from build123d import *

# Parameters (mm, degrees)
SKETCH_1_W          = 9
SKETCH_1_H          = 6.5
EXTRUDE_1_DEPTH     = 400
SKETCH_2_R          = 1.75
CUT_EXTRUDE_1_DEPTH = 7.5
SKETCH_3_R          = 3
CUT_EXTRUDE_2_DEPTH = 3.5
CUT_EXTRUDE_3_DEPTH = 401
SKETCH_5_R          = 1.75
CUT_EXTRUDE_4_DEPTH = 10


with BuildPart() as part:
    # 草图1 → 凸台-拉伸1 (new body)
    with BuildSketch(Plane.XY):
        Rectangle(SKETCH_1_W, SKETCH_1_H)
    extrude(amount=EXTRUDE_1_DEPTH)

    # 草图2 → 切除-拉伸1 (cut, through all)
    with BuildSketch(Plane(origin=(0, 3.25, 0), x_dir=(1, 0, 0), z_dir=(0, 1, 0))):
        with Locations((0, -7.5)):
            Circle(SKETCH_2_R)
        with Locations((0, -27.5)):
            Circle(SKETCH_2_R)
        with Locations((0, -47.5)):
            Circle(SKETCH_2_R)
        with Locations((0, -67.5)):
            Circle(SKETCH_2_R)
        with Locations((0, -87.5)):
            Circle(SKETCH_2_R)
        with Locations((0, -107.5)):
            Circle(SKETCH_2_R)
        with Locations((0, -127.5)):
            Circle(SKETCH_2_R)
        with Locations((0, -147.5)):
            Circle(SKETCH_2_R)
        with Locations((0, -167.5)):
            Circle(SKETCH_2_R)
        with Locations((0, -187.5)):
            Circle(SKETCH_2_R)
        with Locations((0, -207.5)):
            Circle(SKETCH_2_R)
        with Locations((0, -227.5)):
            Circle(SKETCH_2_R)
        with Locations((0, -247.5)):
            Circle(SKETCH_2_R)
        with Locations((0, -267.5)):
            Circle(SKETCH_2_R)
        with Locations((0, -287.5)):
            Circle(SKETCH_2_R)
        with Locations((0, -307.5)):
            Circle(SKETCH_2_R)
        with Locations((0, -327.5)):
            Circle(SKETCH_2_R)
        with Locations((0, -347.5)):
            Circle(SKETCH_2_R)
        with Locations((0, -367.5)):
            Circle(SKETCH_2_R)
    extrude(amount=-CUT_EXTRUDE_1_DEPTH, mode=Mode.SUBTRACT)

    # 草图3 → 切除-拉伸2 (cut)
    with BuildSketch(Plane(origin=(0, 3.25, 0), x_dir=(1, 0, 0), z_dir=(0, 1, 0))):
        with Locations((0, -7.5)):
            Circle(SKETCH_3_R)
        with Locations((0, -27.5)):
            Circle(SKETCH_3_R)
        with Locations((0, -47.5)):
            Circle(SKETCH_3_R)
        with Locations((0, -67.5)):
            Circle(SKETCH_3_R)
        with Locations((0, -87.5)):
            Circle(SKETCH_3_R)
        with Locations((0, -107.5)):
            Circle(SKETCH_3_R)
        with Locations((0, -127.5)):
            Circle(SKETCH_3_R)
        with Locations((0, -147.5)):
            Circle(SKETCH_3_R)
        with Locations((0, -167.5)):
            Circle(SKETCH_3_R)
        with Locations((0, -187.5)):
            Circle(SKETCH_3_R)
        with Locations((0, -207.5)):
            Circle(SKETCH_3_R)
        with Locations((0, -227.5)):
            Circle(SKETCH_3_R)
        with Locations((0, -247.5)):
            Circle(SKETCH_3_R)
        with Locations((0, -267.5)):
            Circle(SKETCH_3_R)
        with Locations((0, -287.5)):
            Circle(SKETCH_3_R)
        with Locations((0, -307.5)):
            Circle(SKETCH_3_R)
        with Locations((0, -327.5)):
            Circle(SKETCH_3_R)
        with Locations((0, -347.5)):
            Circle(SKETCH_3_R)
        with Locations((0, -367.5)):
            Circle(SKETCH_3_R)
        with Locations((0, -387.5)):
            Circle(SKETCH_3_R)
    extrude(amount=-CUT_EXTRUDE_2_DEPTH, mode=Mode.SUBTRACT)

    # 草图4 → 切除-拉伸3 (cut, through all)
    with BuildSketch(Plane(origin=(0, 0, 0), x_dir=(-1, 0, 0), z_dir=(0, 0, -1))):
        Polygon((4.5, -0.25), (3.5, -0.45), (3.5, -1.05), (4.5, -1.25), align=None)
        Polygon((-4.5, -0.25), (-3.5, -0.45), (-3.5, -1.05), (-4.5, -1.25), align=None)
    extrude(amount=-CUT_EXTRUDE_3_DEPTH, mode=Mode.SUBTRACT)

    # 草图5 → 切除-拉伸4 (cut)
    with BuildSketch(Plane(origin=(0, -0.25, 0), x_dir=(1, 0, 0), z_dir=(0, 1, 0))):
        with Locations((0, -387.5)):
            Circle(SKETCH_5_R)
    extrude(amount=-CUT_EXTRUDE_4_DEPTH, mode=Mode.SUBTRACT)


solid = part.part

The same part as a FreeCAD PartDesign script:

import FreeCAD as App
import Part
import Sketcher
from FreeCAD import Vector
Q = App.Units.Quantity


def add_polygon(sketch, points):
    """Adds a closed chain of lines whose ends are joined by coincident constraints."""
    first, n = sketch.GeometryCount, len(points)
    for a, b in zip(points, points[1:] + points[:1]):
        sketch.addGeometry(Part.LineSegment(App.Vector(*a, 0), App.Vector(*b, 0)), False)
    for i in range(n):
        sketch.addConstraint(Sketcher.Constraint("Coincident", first + i, 2, first + (i + 1) % n, 1))

doc = App.newDocument("Part")
body = doc.addObject("PartDesign::Body", "Body")

# Sketch on XY plane
sketch1 = body.newObject("Sketcher::SketchObject", "Sketch")
sketch1.AttachmentSupport = (doc.getObject("XY_Plane"), [""])
sketch1.MapMode = "FlatFace"
add_polygon(sketch1, [(-4.5, 3.25), (-4.5, -3.25), (4.5, -3.25), (4.5, 3.25)])  # lines 0-3
sketch1.addConstraint([
    Sketcher.Constraint("Vertical", 0),
    Sketcher.Constraint("Horizontal", 1),
    Sketcher.Constraint("Vertical", 2),
    Sketcher.Constraint("Horizontal", 3),
    Sketcher.Constraint("Symmetric", 0, 2, 2, 2, -1, 1),
    Sketcher.Constraint("DistanceX", 1, 1, 1, 2, Q("9 mm")),
    Sketcher.Constraint("DistanceY", 0, 2, 0, 1, Q("6.5 mm")),
])
pad1 = body.newObject("PartDesign::Pad", "Pad")
pad1.Profile = sketch1
pad1.Length = 400

# Sketch on XZ plane
sketch2 = body.newObject("Sketcher::SketchObject", "Sketch001")
sketch2.AttachmentSupport = (doc.getObject("XZ_Plane"), [""])
sketch2.MapMode = "FlatFace"
sketch2.AttachmentOffset = App.Placement(Vector(0, 0, -3.25), App.Rotation())
sketch2.addGeometry([
    Part.Circle(Vector(0, 7.5, 0), Vector(0, 0, 1), 1.75),  # 0
    Part.Circle(Vector(0, 27.5, 0), Vector(0, 0, 1), 1.75),  # 1
    Part.Circle(Vector(0, 47.5, 0), Vector(0, 0, 1), 1.75),  # 2
    Part.Circle(Vector(0, 67.5, 0), Vector(0, 0, 1), 1.75),  # 3
    Part.Circle(Vector(0, 87.5, 0), Vector(0, 0, 1), 1.75),  # 4
    Part.Circle(Vector(0, 107.5, 0), Vector(0, 0, 1), 1.75),  # 5
    Part.Circle(Vector(0, 127.5, 0), Vector(0, 0, 1), 1.75),  # 6
    Part.Circle(Vector(0, 147.5, 0), Vector(0, 0, 1), 1.75),  # 7
    Part.Circle(Vector(0, 167.5, 0), Vector(0, 0, 1), 1.75),  # 8
    Part.Circle(Vector(0, 187.5, 0), Vector(0, 0, 1), 1.75),  # 9
    Part.Circle(Vector(0, 207.5, 0), Vector(0, 0, 1), 1.75),  # 10
    Part.Circle(Vector(0, 227.5, 0), Vector(0, 0, 1), 1.75),  # 11
    Part.Circle(Vector(0, 247.5, 0), Vector(0, 0, 1), 1.75),  # 12
    Part.Circle(Vector(0, 267.5, 0), Vector(0, 0, 1), 1.75),  # 13
    Part.Circle(Vector(0, 287.5, 0), Vector(0, 0, 1), 1.75),  # 14
    Part.Circle(Vector(0, 307.5, 0), Vector(0, 0, 1), 1.75),  # 15
    Part.Circle(Vector(0, 327.5, 0), Vector(0, 0, 1), 1.75),  # 16
    Part.Circle(Vector(0, 347.5, 0), Vector(0, 0, 1), 1.75),  # 17
    Part.Circle(Vector(0, 367.5, 0), Vector(0, 0, 1), 1.75),  # 18
], False)
sketch2.addConstraint([
    Sketcher.Constraint("Equal", 0, 1),
    Sketcher.Constraint("Equal", 1, 2),
    Sketcher.Constraint("Equal", 2, 3),
    Sketcher.Constraint("Equal", 3, 4),
    Sketcher.Constraint("Equal", 4, 5),
    Sketcher.Constraint("Equal", 5, 6),
    Sketcher.Constraint("Equal", 6, 7),
    Sketcher.Constraint("Equal", 7, 8),
    Sketcher.Constraint("Equal", 8, 9),
    Sketcher.Constraint("Equal", 9, 10),
    Sketcher.Constraint("Equal", 10, 11),
    Sketcher.Constraint("Equal", 11, 12),
    Sketcher.Constraint("Equal", 12, 13),
    Sketcher.Constraint("Equal", 13, 14),
    Sketcher.Constraint("Equal", 14, 15),
    Sketcher.Constraint("Equal", 15, 16),
    Sketcher.Constraint("Equal", 16, 17),
    Sketcher.Constraint("Equal", 17, 18),
    Sketcher.Constraint("PointOnObject", 0, 3, -2),
    Sketcher.Constraint("PointOnObject", 1, 3, -2),
    Sketcher.Constraint("PointOnObject", 2, 3, -2),
    Sketcher.Constraint("PointOnObject", 3, 3, -2),
    Sketcher.Constraint("PointOnObject", 4, 3, -2),
    Sketcher.Constraint("PointOnObject", 5, 3, -2),
    Sketcher.Constraint("PointOnObject", 6, 3, -2),
    Sketcher.Constraint("PointOnObject", 7, 3, -2),
    Sketcher.Constraint("PointOnObject", 8, 3, -2),
    Sketcher.Constraint("PointOnObject", 9, 3, -2),
    Sketcher.Constraint("PointOnObject", 10, 3, -2),
    Sketcher.Constraint("PointOnObject", 11, 3, -2),
    Sketcher.Constraint("PointOnObject", 12, 3, -2),
    Sketcher.Constraint("PointOnObject", 13, 3, -2),
    Sketcher.Constraint("PointOnObject", 14, 3, -2),
    Sketcher.Constraint("PointOnObject", 15, 3, -2),
    Sketcher.Constraint("PointOnObject", 16, 3, -2),
    Sketcher.Constraint("PointOnObject", 17, 3, -2),
    Sketcher.Constraint("PointOnObject", 18, 3, -2),
    Sketcher.Constraint("Diameter", 0, Q("3.5 mm")),
    Sketcher.Constraint("DistanceY", 0, 3, 1, 3, Q("20 mm")),
    Sketcher.Constraint("DistanceY", 1, 3, 2, 3, Q("20 mm")),
    Sketcher.Constraint("DistanceY", 2, 3, 3, 3, Q("20 mm")),
    Sketcher.Constraint("DistanceY", 3, 3, 4, 3, Q("20 mm")),
    Sketcher.Constraint("DistanceY", 4, 3, 5, 3, Q("20 mm")),
    Sketcher.Constraint("DistanceY", 5, 3, 6, 3, Q("20 mm")),
    Sketcher.Constraint("DistanceY", 6, 3, 7, 3, Q("20 mm")),
    Sketcher.Constraint("DistanceY", 7, 3, 8, 3, Q("20 mm")),
    Sketcher.Constraint("DistanceY", 8, 3, 9, 3, Q("20 mm")),
    Sketcher.Constraint("DistanceY", 9, 3, 10, 3, Q("20 mm")),
    Sketcher.Constraint("DistanceY", 10, 3, 11, 3, Q("20 mm")),
    Sketcher.Constraint("DistanceY", 11, 3, 12, 3, Q("20 mm")),
    Sketcher.Constraint("DistanceY", 12, 3, 13, 3, Q("20 mm")),
    Sketcher.Constraint("DistanceY", 13, 3, 14, 3, Q("20 mm")),
    Sketcher.Constraint("DistanceY", 14, 3, 15, 3, Q("20 mm")),
    Sketcher.Constraint("DistanceY", 15, 3, 16, 3, Q("20 mm")),
    Sketcher.Constraint("DistanceY", 16, 3, 17, 3, Q("20 mm")),
    Sketcher.Constraint("DistanceY", 17, 3, 18, 3, Q("20 mm")),
    Sketcher.Constraint("DistanceY", -1, 1, 0, 3, Q("7.5 mm")),
])
pocket1 = body.newObject("PartDesign::Pocket", "Pocket")
pocket1.Profile = sketch2
pocket1.Type = "ThroughAll"
pocket1.Reversed = True

# Sketch on XZ plane
sketch3 = body.newObject("Sketcher::SketchObject", "Sketch002")
sketch3.AttachmentSupport = (doc.getObject("XZ_Plane"), [""])
sketch3.MapMode = "FlatFace"
sketch3.AttachmentOffset = App.Placement(Vector(0, 0, -3.25), App.Rotation())
sketch3.addGeometry([
    Part.Circle(Vector(0, 7.5, 0), Vector(0, 0, 1), 3),  # 0
    Part.Circle(Vector(0, 27.5, 0), Vector(0, 0, 1), 3),  # 1
    Part.Circle(Vector(0, 47.5, 0), Vector(0, 0, 1), 3),  # 2
    Part.Circle(Vector(0, 67.5, 0), Vector(0, 0, 1), 3),  # 3
    Part.Circle(Vector(0, 87.5, 0), Vector(0, 0, 1), 3),  # 4
    Part.Circle(Vector(0, 107.5, 0), Vector(0, 0, 1), 3),  # 5
    Part.Circle(Vector(0, 127.5, 0), Vector(0, 0, 1), 3),  # 6
    Part.Circle(Vector(0, 147.5, 0), Vector(0, 0, 1), 3),  # 7
    Part.Circle(Vector(0, 167.5, 0), Vector(0, 0, 1), 3),  # 8
    Part.Circle(Vector(0, 187.5, 0), Vector(0, 0, 1), 3),  # 9
    Part.Circle(Vector(0, 207.5, 0), Vector(0, 0, 1), 3),  # 10
    Part.Circle(Vector(0, 227.5, 0), Vector(0, 0, 1), 3),  # 11
    Part.Circle(Vector(0, 247.5, 0), Vector(0, 0, 1), 3),  # 12
    Part.Circle(Vector(0, 267.5, 0), Vector(0, 0, 1), 3),  # 13
    Part.Circle(Vector(0, 287.5, 0), Vector(0, 0, 1), 3),  # 14
    Part.Circle(Vector(0, 307.5, 0), Vector(0, 0, 1), 3),  # 15
    Part.Circle(Vector(0, 327.5, 0), Vector(0, 0, 1), 3),  # 16
    Part.Circle(Vector(0, 347.5, 0), Vector(0, 0, 1), 3),  # 17
    Part.Circle(Vector(0, 367.5, 0), Vector(0, 0, 1), 3),  # 18
    Part.Circle(Vector(0, 387.5, 0), Vector(0, 0, 1), 3),  # 19
], False)
sketch3.addConstraint([
    Sketcher.Constraint("Equal", 0, 1),
    Sketcher.Constraint("Equal", 1, 2),
    Sketcher.Constraint("Equal", 2, 3),
    Sketcher.Constraint("Equal", 3, 4),
    Sketcher.Constraint("Equal", 4, 5),
    Sketcher.Constraint("Equal", 5, 6),
    Sketcher.Constraint("Equal", 6, 7),
    Sketcher.Constraint("Equal", 7, 8),
    Sketcher.Constraint("Equal", 8, 9),
    Sketcher.Constraint("Equal", 9, 10),
    Sketcher.Constraint("Equal", 10, 11),
    Sketcher.Constraint("Equal", 11, 12),
    Sketcher.Constraint("Equal", 12, 13),
    Sketcher.Constraint("Equal", 13, 14),
    Sketcher.Constraint("Equal", 14, 15),
    Sketcher.Constraint("Equal", 15, 16),
    Sketcher.Constraint("Equal", 16, 17),
    Sketcher.Constraint("Equal", 17, 18),
    Sketcher.Constraint("Equal", 18, 19),
    Sketcher.Constraint("PointOnObject", 0, 3, -2),
    Sketcher.Constraint("PointOnObject", 1, 3, -2),
    Sketcher.Constraint("PointOnObject", 2, 3, -2),
    Sketcher.Constraint("PointOnObject", 3, 3, -2),
    Sketcher.Constraint("PointOnObject", 4, 3, -2),
    Sketcher.Constraint("PointOnObject", 5, 3, -2),
    Sketcher.Constraint("PointOnObject", 6, 3, -2),
    Sketcher.Constraint("PointOnObject", 7, 3, -2),
    Sketcher.Constraint("PointOnObject", 8, 3, -2),
    Sketcher.Constraint("PointOnObject", 9, 3, -2),
    Sketcher.Constraint("PointOnObject", 10, 3, -2),
    Sketcher.Constraint("PointOnObject", 11, 3, -2),
    Sketcher.Constraint("PointOnObject", 12, 3, -2),
    Sketcher.Constraint("PointOnObject", 13, 3, -2),
    Sketcher.Constraint("PointOnObject", 14, 3, -2),
    Sketcher.Constraint("PointOnObject", 15, 3, -2),
    Sketcher.Constraint("PointOnObject", 16, 3, -2),
    Sketcher.Constraint("PointOnObject", 17, 3, -2),
    Sketcher.Constraint("PointOnObject", 18, 3, -2),
    Sketcher.Constraint("PointOnObject", 19, 3, -2),
    Sketcher.Constraint("Diameter", 0, Q("6 mm")),
    Sketcher.Constraint("DistanceY", 0, 3, 1, 3, Q("20 mm")),
    Sketcher.Constraint("DistanceY", 1, 3, 2, 3, Q("20 mm")),
    Sketcher.Constraint("DistanceY", 2, 3, 3, 3, Q("20 mm")),
    Sketcher.Constraint("DistanceY", 3, 3, 4, 3, Q("20 mm")),
    Sketcher.Constraint("DistanceY", 4, 3, 5, 3, Q("20 mm")),
    Sketcher.Constraint("DistanceY", 5, 3, 6, 3, Q("20 mm")),
    Sketcher.Constraint("DistanceY", 6, 3, 7, 3, Q("20 mm")),
    Sketcher.Constraint("DistanceY", 7, 3, 8, 3, Q("20 mm")),
    Sketcher.Constraint("DistanceY", 8, 3, 9, 3, Q("20 mm")),
    Sketcher.Constraint("DistanceY", 9, 3, 10, 3, Q("20 mm")),
    Sketcher.Constraint("DistanceY", 10, 3, 11, 3, Q("20 mm")),
    Sketcher.Constraint("DistanceY", 11, 3, 12, 3, Q("20 mm")),
    Sketcher.Constraint("DistanceY", 12, 3, 13, 3, Q("20 mm")),
    Sketcher.Constraint("DistanceY", 13, 3, 14, 3, Q("20 mm")),
    Sketcher.Constraint("DistanceY", 14, 3, 15, 3, Q("20 mm")),
    Sketcher.Constraint("DistanceY", 15, 3, 16, 3, Q("20 mm")),
    Sketcher.Constraint("DistanceY", 16, 3, 17, 3, Q("20 mm")),
    Sketcher.Constraint("DistanceY", 17, 3, 18, 3, Q("20 mm")),
    Sketcher.Constraint("DistanceY", 18, 3, 19, 3, Q("20 mm")),
    Sketcher.Constraint("DistanceY", -1, 1, 0, 3, Q("7.5 mm")),
])
pocket2 = body.newObject("PartDesign::Pocket", "Pocket001")
pocket2.Profile = sketch3
pocket2.Length = 3.5
pocket2.Reversed = True

# Sketch on XY plane
sketch4 = body.newObject("Sketcher::SketchObject", "Sketch003")
sketch4.AttachmentSupport = (doc.getObject("XY_Plane"), [""])
sketch4.MapMode = "FlatFace"
add_polygon(sketch4, [(-4.5, -0.25), (-3.5, -0.45), (-3.5, -1.05), (-4.5, -1.25)])  # lines 0-3
add_polygon(sketch4, [(3.5, -0.45), (4.5, -0.25), (4.5, -1.25), (3.5, -1.05)])  # lines 4-7
sketch4.addConstraint([
    Sketcher.Constraint("Vertical", 1),
    Sketcher.Constraint("Vertical", 3),
    Sketcher.Constraint("Vertical", 5),
    Sketcher.Constraint("Vertical", 7),
    Sketcher.Constraint("Symmetric", 3, 2, 4, 2, -2),
    Sketcher.Constraint("Symmetric", 1, 2, 6, 2, -2),
    Sketcher.Constraint("Parallel", 2, 4),
    Sketcher.Constraint("Parallel", 0, 6),
    Sketcher.Constraint("Horizontal", 2, 2, 5, 2),
    Sketcher.Constraint("DistanceY", 3, 1, 3, 2, Q("1 mm")),
    Sketcher.Constraint("DistanceY", 1, 2, 1, 1, Q("0.6 mm")),
    Sketcher.Constraint("DistanceX", 2, 2, 1, 2, Q("1 mm")),
    Sketcher.Constraint("DistanceX", 0, 2, 4, 2, Q("8 mm")),
    Sketcher.Constraint("DistanceY", 0, 2, -1, 1, Q("0.45 mm")),
])
pocket3 = body.newObject("PartDesign::Pocket", "Pocket002")
pocket3.Profile = sketch4
pocket3.Type = "ThroughAll"
pocket3.Reversed = True

# Sketch on XZ plane
sketch5 = body.newObject("Sketcher::SketchObject", "Sketch004")
sketch5.AttachmentSupport = (doc.getObject("XZ_Plane"), [""])
sketch5.MapMode = "FlatFace"
sketch5.AttachmentOffset = App.Placement(Vector(0, 0, 0.25), App.Rotation())
sketch5.addGeometry(Part.Circle(Vector(0, 387.5, 0), Vector(0, 0, 1), 1.75), False)
sketch5.addConstraint([
    Sketcher.Constraint("PointOnObject", 0, 3, -2),
    Sketcher.Constraint("Diameter", 0, Q("3.5 mm")),
    Sketcher.Constraint("DistanceY", -1, 1, 0, 3, Q("387.5 mm")),
])
pocket4 = body.newObject("PartDesign::Pocket", "Pocket003")
pocket4.Profile = sketch5
pocket4.Length = 10
pocket4.Reversed = True

doc.recompute()
